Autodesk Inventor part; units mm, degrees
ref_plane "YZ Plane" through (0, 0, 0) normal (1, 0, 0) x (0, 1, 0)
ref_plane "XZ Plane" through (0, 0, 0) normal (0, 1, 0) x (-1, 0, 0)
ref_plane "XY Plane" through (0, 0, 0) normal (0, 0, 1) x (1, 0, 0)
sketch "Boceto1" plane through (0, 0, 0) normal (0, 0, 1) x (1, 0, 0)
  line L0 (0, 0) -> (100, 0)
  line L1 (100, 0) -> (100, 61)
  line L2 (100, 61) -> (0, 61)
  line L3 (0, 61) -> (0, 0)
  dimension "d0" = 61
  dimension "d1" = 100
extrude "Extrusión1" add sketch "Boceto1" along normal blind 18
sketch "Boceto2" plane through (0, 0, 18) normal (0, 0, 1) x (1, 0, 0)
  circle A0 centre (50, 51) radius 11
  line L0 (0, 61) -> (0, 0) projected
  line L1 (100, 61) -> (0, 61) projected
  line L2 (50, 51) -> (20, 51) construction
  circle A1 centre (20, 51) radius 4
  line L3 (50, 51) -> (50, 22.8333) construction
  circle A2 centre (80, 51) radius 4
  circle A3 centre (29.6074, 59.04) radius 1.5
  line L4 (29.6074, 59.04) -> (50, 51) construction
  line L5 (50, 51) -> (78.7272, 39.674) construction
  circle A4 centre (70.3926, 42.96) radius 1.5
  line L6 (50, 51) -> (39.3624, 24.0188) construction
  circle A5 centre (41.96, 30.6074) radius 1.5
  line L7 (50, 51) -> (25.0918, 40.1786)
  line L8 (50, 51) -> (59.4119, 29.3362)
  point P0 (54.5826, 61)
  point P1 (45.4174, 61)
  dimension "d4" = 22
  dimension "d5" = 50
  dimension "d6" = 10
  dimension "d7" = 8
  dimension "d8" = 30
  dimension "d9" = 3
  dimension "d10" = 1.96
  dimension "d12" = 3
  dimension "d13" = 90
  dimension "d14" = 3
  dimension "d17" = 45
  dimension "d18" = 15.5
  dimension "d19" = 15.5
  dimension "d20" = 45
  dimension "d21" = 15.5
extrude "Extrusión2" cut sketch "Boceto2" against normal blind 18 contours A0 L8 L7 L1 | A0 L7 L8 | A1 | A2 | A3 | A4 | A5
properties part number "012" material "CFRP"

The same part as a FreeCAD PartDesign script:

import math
import FreeCAD as App
import Part
import Sketcher
Q = App.Units.Quantity

doc = App.newDocument("Part")
body = doc.addObject("PartDesign::Body", "Body")

# Sketch on XY plane
sketch1 = doc.addObject("Sketcher::SketchObject", "Sketch")
body.addObject(sketch1)
sketch1.AttachmentSupport = (doc.XY_Plane, [""])
sketch1.MapMode = "FlatFace"
sketch1.addGeometry([
    Part.LineSegment(App.Vector(0, 61, 0), App.Vector(0, 0, 0)),
    Part.LineSegment(App.Vector(0, 0, 0), App.Vector(100, 0, 0)),
    Part.LineSegment(App.Vector(100, 0, 0), App.Vector(100, 61, 0)),
    Part.LineSegment(App.Vector(100, 61, 0), App.Vector(0, 61, 0)),
], False)
sketch1.addConstraint([
    Sketcher.Constraint("Coincident", 0, 2, 1, 1),
    Sketcher.Constraint("Coincident", 1, 2, 2, 1),
    Sketcher.Constraint("Coincident", 2, 2, 3, 1),
    Sketcher.Constraint("Coincident", 3, 2, 0, 1),
    Sketcher.Constraint("Vertical", 0),
    Sketcher.Constraint("Horizontal", 1),
    Sketcher.Constraint("Vertical", 2),
    Sketcher.Constraint("Horizontal", 3),
    Sketcher.Constraint("Coincident", 0, 2, -1, 1),
    Sketcher.Constraint("DistanceX", 1, 1, 1, 2, Q("100 mm")),
    Sketcher.Constraint("DistanceY", 0, 2, 0, 1, Q("61 mm")),
])
pad1 = doc.addObject("PartDesign::Pad", "Pad")
body.addObject(pad1)
pad1.Profile = sketch1
pad1.Length = 18

# Sketch on XY plane
sketch2 = doc.addObject("Sketcher::SketchObject", "Sketch001")
body.addObject(sketch2)
sketch2.AttachmentSupport = (doc.XY_Plane, [""])
sketch2.MapMode = "FlatFace"
sketch2.AttachmentOffset = App.Placement(App.Vector(0, 0, 18), App.Rotation())
sketch2.addGeometry([
    Part.LineSegment(App.Vector(54.6, 61, 0), App.Vector(45.4, 61, 0)),  # 0
    Part.ArcOfCircle(Part.Circle(App.Vector(50, 51, 0), App.Vector(0, 0, 1), 11), math.radians(115), math.radians(425)),  # 1
    Part.Circle(App.Vector(20, 51, 0), App.Vector(0, 0, 1), 4),  # 2
    Part.Circle(App.Vector(80, 51, 0), App.Vector(0, 0, 1), 4),  # 3
    Part.Circle(App.Vector(29.6, 59, 0), App.Vector(0, 0, 1), 1.5),  # 4
    Part.Circle(App.Vector(70.4, 43, 0), App.Vector(0, 0, 1), 1.5),  # 5
    Part.Circle(App.Vector(42, 30.6, 0), App.Vector(0, 0, 1), 1.5),  # 6
], False)
sketch2.addConstraint([
    Sketcher.Constraint("Coincident", 0, 1, 1, 2),
    Sketcher.Constraint("Coincident", 1, 1, 0, 2),
    Sketcher.Constraint("Horizontal", 0),
    Sketcher.Constraint("Equal", 2, 3),
    Sketcher.Constraint("Equal", 4, 5),
    Sketcher.Constraint("Equal", 5, 6),
    Sketcher.Constraint("Horizontal", 1, 3, 2, 3),
    Sketcher.Constraint("Horizontal", 2, 3, 3, 3),
    Sketcher.Constraint("Diameter", 2, Q("8 mm")),
    Sketcher.Constraint("Diameter", 4, Q("3 mm")),
    Sketcher.Constraint("Radius", 1, Q("11 mm")),
    Sketcher.Constraint("DistanceX", -1, 1, 1, 3, Q("50 mm")),
    Sketcher.Constraint("DistanceX", 2, 3, 1, 3, Q("30 mm")),
    Sketcher.Constraint("DistanceX", 1, 3, 3, 3, Q("30 mm")),
    Sketcher.Constraint("DistanceY", 1, 3, 0, 1, Q("10 mm")),
    Sketcher.Constraint("DistanceY", 4, 3, 0, 1, Q("1.96 mm")),
    Sketcher.Constraint("DistanceY", -1, 1, 1, 3, Q("51 mm")),
    Sketcher.Constraint("DistanceY", -1, 1, 5, 3, Q("42.96 mm")),
    Sketcher.Constraint("DistanceX", -1, 1, 6, 3, Q("41.96 mm")),
    Sketcher.Constraint("DistanceX", 0, 1, 5, 3, Q("15.81 mm")),
    Sketcher.Constraint("DistanceX", 4, 3, 1, 1, Q("15.81 mm")),
    Sketcher.Constraint("DistanceY", -1, 1, 6, 3, Q("30.6074 mm")),
])
pocket1 = doc.addObject("PartDesign::Pocket", "Pocket")
body.addObject(pocket1)
pocket1.Profile = sketch2
pocket1.Length = 18

doc.recompute()
